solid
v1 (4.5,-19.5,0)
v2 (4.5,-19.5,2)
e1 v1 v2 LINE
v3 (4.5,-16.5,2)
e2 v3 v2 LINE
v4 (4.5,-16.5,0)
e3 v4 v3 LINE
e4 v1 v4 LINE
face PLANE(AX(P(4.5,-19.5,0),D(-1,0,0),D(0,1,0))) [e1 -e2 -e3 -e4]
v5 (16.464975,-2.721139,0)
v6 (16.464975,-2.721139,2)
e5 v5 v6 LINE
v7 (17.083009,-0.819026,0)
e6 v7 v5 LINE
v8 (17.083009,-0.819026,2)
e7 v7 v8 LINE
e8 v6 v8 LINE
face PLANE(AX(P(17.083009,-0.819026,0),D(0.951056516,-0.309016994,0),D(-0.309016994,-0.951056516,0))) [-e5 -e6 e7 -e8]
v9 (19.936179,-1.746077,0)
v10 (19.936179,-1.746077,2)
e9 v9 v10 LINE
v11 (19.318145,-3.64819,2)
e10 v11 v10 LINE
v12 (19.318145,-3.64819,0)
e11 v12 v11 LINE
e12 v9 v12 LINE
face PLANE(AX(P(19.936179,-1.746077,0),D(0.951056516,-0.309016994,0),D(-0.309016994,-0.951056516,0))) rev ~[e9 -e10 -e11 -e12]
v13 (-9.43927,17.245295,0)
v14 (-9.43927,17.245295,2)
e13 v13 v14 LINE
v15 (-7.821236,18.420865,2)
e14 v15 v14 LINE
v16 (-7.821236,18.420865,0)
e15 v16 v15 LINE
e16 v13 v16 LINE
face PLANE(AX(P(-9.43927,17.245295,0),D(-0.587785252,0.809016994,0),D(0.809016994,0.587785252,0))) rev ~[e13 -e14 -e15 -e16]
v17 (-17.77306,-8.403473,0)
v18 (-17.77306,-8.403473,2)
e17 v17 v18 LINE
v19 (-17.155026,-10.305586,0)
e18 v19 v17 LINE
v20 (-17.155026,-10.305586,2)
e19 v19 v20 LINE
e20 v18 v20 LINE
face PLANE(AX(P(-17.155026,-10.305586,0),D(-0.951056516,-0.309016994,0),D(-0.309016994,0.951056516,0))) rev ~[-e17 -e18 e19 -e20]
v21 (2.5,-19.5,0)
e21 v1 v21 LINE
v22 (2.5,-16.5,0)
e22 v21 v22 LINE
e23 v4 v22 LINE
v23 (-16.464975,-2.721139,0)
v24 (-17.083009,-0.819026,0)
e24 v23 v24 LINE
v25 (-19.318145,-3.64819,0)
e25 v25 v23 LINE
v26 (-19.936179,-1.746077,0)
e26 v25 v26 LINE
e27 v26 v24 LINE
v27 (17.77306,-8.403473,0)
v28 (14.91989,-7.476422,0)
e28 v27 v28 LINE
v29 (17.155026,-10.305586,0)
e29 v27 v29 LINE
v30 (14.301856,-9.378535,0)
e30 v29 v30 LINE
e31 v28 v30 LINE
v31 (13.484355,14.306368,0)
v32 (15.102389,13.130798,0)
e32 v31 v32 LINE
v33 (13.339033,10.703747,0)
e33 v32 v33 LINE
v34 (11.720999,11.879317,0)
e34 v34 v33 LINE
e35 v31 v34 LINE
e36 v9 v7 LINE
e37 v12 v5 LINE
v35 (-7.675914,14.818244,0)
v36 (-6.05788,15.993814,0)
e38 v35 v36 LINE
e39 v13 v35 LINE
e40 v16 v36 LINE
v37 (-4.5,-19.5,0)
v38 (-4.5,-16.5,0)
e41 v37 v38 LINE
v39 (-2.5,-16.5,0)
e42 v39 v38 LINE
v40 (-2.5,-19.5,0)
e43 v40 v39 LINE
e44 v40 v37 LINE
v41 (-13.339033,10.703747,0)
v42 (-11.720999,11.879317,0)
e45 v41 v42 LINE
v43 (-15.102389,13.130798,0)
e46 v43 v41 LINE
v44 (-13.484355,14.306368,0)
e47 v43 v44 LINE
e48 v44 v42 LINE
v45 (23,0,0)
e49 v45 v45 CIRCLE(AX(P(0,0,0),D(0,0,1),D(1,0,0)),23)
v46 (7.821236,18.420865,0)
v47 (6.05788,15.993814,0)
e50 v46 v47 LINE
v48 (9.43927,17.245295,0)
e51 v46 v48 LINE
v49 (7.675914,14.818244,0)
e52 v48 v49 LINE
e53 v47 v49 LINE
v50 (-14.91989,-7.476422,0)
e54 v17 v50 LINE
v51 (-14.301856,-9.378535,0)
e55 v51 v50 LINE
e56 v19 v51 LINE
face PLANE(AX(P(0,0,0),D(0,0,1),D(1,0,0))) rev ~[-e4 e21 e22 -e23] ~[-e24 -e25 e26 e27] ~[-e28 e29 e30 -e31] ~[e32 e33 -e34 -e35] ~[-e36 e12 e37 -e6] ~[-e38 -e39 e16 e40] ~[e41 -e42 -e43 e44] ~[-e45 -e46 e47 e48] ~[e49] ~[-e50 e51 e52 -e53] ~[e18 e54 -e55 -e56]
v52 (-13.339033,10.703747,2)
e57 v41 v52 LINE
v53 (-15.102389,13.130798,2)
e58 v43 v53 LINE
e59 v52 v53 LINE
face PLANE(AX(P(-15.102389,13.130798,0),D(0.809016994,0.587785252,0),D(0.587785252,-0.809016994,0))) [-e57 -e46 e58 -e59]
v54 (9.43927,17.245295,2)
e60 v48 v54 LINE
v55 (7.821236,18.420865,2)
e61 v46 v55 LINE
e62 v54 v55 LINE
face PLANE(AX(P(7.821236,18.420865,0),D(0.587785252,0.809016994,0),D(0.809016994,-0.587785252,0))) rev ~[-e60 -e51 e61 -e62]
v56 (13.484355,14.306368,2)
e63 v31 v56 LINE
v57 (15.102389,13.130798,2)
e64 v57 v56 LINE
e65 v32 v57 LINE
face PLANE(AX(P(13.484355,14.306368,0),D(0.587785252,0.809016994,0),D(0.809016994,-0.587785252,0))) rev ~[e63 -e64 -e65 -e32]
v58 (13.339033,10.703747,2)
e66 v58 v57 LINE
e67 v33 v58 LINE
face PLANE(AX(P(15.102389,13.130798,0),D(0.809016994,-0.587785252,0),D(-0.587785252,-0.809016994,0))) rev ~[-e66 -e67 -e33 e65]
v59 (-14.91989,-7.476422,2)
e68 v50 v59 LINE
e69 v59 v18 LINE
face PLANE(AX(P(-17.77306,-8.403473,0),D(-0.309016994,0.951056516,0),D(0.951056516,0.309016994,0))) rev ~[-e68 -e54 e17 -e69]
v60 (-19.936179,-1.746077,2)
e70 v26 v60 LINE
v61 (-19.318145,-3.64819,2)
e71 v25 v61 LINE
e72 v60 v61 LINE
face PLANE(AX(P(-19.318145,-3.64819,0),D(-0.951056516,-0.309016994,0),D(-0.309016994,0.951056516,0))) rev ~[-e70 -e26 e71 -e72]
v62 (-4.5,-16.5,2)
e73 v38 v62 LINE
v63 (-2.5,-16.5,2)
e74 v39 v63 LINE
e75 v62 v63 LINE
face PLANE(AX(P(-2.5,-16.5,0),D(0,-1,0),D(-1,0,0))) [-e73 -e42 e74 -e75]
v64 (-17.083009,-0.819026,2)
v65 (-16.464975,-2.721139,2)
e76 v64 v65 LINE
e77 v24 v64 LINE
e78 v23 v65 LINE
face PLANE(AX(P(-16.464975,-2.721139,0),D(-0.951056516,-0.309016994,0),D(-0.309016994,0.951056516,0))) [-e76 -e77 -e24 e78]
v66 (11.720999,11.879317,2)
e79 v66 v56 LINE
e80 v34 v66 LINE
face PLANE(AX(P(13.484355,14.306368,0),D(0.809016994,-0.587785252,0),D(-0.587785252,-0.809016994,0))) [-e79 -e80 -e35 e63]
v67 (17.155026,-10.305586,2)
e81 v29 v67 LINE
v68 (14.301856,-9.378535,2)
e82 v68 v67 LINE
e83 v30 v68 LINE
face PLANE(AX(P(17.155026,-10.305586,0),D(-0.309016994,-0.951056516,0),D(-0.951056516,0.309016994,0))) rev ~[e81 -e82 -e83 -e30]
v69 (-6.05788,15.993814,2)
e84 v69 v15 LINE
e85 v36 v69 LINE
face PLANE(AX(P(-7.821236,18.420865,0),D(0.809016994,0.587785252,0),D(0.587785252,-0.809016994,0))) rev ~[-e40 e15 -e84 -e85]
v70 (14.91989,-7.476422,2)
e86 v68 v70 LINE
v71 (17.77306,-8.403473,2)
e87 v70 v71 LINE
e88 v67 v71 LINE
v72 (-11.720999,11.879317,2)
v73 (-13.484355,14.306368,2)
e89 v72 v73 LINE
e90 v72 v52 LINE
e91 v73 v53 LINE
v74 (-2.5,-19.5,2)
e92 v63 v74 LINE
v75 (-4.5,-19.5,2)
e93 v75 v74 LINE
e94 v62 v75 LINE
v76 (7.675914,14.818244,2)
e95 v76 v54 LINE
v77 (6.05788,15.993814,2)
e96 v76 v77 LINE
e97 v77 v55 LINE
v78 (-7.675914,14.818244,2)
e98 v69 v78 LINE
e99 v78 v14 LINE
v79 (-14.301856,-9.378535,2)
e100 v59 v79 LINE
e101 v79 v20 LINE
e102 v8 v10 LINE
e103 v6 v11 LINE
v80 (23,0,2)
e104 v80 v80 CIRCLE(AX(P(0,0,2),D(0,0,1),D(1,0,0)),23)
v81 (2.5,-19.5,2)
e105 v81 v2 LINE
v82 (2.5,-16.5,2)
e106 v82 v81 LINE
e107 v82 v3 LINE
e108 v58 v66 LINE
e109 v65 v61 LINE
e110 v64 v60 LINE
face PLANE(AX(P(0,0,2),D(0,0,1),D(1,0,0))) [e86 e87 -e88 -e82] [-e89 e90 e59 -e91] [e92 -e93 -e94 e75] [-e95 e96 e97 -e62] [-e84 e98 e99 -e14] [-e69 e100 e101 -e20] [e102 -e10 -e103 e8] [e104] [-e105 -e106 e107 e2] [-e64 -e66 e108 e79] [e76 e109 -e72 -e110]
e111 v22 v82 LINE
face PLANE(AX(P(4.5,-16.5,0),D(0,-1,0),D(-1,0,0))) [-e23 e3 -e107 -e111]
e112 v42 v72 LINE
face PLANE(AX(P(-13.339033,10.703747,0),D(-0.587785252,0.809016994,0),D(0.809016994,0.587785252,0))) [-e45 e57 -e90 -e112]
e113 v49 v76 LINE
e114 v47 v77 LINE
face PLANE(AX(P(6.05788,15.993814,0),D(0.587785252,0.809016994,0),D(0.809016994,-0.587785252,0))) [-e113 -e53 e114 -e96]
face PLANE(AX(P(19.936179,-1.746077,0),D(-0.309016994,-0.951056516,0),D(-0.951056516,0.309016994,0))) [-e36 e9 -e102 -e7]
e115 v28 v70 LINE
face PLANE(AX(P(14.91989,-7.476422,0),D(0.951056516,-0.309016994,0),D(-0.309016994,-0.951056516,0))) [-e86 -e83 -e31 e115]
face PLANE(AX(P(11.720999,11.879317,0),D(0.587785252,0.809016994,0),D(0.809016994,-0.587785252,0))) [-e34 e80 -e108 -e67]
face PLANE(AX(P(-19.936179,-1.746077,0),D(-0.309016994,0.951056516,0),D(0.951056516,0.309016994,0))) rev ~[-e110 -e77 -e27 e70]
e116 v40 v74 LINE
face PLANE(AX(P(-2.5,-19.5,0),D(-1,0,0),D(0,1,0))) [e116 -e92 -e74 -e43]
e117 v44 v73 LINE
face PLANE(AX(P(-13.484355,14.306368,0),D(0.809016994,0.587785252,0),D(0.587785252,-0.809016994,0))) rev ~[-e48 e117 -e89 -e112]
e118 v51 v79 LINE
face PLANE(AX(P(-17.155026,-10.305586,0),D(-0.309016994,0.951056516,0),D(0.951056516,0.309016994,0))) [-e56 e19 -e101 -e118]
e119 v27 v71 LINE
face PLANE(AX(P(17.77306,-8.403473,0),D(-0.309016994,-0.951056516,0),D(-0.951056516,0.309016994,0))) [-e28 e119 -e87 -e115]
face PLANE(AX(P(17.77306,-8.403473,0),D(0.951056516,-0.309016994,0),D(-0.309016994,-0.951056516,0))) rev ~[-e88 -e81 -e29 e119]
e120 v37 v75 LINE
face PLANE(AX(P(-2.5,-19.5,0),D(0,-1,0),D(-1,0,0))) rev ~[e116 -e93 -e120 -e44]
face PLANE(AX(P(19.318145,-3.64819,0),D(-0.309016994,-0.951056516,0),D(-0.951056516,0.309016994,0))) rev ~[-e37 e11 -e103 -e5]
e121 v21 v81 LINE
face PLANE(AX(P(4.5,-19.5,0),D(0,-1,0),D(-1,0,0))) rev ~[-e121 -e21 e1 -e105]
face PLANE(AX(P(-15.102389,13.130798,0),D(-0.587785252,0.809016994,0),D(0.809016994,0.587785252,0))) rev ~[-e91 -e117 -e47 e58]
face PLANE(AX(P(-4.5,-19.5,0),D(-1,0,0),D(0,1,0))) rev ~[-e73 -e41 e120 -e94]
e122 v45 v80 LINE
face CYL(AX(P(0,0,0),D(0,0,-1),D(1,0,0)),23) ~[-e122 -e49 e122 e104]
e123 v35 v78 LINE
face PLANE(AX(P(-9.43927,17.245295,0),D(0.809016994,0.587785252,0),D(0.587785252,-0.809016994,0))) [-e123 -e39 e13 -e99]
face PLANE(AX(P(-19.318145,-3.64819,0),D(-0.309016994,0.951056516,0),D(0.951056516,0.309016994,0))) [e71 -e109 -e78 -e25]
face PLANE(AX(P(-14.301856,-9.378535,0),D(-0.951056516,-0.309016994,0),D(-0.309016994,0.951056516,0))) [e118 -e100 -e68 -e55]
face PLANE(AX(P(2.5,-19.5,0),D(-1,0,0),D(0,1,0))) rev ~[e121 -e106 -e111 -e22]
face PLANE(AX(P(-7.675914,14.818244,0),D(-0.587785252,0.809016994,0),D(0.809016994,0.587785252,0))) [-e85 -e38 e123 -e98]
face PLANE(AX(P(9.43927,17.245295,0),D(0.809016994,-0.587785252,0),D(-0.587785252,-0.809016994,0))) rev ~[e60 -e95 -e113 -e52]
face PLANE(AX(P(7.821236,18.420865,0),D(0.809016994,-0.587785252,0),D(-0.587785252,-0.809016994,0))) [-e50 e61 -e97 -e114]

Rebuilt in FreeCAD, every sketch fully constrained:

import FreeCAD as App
import Part
import Sketcher
from FreeCAD import Vector

doc = App.newDocument("Part")
body = doc.addObject("PartDesign::Body", "Body")

sketch1 = body.newObject("Sketcher::SketchObject", "Sketch")
sketch1.AttachmentSupport = (doc.getObject("XY_Plane"), [""])
sketch1.MapMode = "FlatFace"
sketch1.addGeometry(Part.Circle(Vector(0, 0, 0), Vector(0, 0, 1), 23), False)
sketch1.addConstraint([
    Sketcher.Constraint("Coincident", 0, 3, -1, 1),
    Sketcher.Constraint("Diameter", 0, 46.0),
])
pad1 = body.newObject("PartDesign::Pad", "Pad")
pad1.Profile = sketch1
pad1.Length = 2

sketch2 = body.newObject("Sketcher::SketchObject", "Sketch001")
sketch2.AttachmentSupport = (doc.getObject("XY_Plane"), [""])
sketch2.MapMode = "FlatFace"
sketch2.addGeometry([
    Part.LineSegment(Vector(-4.5, -19.5, 0), Vector(-2.5, -19.5, 0)),
    Part.LineSegment(Vector(-2.5, -19.5, 0), Vector(-2.5, -16.5, 0)),
    Part.LineSegment(Vector(-2.5, -16.5, 0), Vector(-4.5, -16.5, 0)),
    Part.LineSegment(Vector(-4.5, -16.5, 0), Vector(-4.5, -19.5, 0)),
    Part.LineSegment(Vector(2.5, -19.5, 0), Vector(4.5, -19.5, 0)),
    Part.LineSegment(Vector(4.5, -19.5, 0), Vector(4.5, -16.5, 0)),
    Part.LineSegment(Vector(4.5, -16.5, 0), Vector(2.5, -16.5, 0)),
    Part.LineSegment(Vector(2.5, -16.5, 0), Vector(2.5, -19.5, 0)),
], False)
sketch2.addConstraint([
    Sketcher.Constraint("Coincident", 0, 2, 1, 1),
    Sketcher.Constraint("Coincident", 1, 2, 2, 1),
    Sketcher.Constraint("Coincident", 2, 2, 3, 1),
    Sketcher.Constraint("Coincident", 3, 2, 0, 1),
    Sketcher.Constraint("Coincident", 4, 2, 5, 1),
    Sketcher.Constraint("Coincident", 5, 2, 6, 1),
    Sketcher.Constraint("Coincident", 6, 2, 7, 1),
    Sketcher.Constraint("Coincident", 7, 2, 4, 1),
    Sketcher.Constraint("Horizontal", 0),
    Sketcher.Constraint("Vertical", 1),
    Sketcher.Constraint("Horizontal", 2),
    Sketcher.Constraint("Vertical", 3),
    Sketcher.Constraint("Horizontal", 4),
    Sketcher.Constraint("Vertical", 5),
    Sketcher.Constraint("Horizontal", 6),
    Sketcher.Constraint("Vertical", 7),
    Sketcher.Constraint("Symmetric", 3, 2, 4, 2, -2),
    Sketcher.Constraint("Symmetric", 1, 2, 6, 2, -2),
    Sketcher.Constraint("DistanceX", 0, 1, 0, 2, 2.0),
    Sketcher.Constraint("DistanceY", 1, 1, 1, 2, 3.0),
    Sketcher.Constraint("DistanceX", 0, 2, 4, 2, 7.0),
    Sketcher.Constraint("DistanceY", 0, 2, -1, 1, 19.5),
])
pocket1 = body.newObject("PartDesign::Pocket", "Pocket")
pocket1.Profile = sketch2
pocket1.Length = 5
pocket1.Reversed = True
doc.recompute()

polarpattern = body.newObject("PartDesign::PolarPattern", "PolarPattern")
polarpattern.Originals = [pocket1]
polarpattern.Axis = (doc.getObject("Z_Axis"), [""])
polarpattern.Angle = 360
polarpattern.Occurrences = 5
body.Tip = polarpattern

doc.recompute()
